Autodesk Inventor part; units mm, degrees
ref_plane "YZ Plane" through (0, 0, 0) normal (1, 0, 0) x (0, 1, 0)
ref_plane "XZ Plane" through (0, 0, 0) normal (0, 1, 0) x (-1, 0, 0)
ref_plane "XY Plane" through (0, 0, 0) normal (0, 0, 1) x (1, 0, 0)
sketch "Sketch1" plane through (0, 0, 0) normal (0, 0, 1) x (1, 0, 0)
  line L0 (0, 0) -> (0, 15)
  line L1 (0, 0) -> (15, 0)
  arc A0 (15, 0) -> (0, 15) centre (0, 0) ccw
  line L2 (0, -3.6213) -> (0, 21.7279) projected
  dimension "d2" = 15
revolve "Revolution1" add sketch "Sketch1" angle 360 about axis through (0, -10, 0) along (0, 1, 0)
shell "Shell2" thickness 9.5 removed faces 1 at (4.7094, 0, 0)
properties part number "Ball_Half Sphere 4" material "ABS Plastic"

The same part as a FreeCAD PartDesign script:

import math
import FreeCAD as App
import Part
import Sketcher


def faces_at(feature, points):
    """Names of the faces that lie closest to the given points."""
    faces = feature.Shape.Faces
    near = lambda p: min(range(len(faces)), key=lambda i: faces[i].distToShape(Part.Vertex(*p))[0])
    return sorted({f"Face{near(p) + 1}" for p in points})

doc = App.newDocument("Part")
body = doc.addObject("PartDesign::Body", "Body")

sketch1 = body.newObject("Sketcher::SketchObject", "Sketch")
sketch1.AttachmentSupport = (doc.getObject("XY_Plane"), [""])
sketch1.MapMode = "FlatFace"
sketch1.addGeometry([
    Part.LineSegment(App.Vector(0, 15, 0), App.Vector(0, 0, 0)),
    Part.LineSegment(App.Vector(0, 0, 0), App.Vector(15, 0, 0)),
    Part.ArcOfCircle(Part.Circle(App.Vector(0, 0, 0), App.Vector(0, 0, 1), 15), math.radians(0), math.radians(90)),
], False)
sketch1.addConstraint([
    Sketcher.Constraint("Coincident", 0, 2, 1, 1),
    Sketcher.Constraint("Coincident", 1, 2, 2, 1),
    Sketcher.Constraint("Coincident", 2, 2, 0, 1),
    Sketcher.Constraint("Vertical", 0),
    Sketcher.Constraint("Horizontal", 1),
    Sketcher.Constraint("Coincident", 2, 3, -1, 1),
    Sketcher.Constraint("Coincident", 0, 2, -1, 1),
    Sketcher.Constraint("Radius", 2, 15.0),
])
revolution = body.newObject("PartDesign::Revolution", "Revolution")
revolution.Profile = sketch1
revolution.ReferenceAxis = (sketch1, ["V_Axis"])
revolution.Angle = 360
doc.recompute()

thickness = body.newObject("PartDesign::Thickness", "Thickness")
thickness.Base = (revolution, faces_at(revolution, [(4.709, 0, 0)]))
thickness.Value = 9.5
thickness.Reversed = True
thickness.Join = "Intersection"

doc.recompute()
